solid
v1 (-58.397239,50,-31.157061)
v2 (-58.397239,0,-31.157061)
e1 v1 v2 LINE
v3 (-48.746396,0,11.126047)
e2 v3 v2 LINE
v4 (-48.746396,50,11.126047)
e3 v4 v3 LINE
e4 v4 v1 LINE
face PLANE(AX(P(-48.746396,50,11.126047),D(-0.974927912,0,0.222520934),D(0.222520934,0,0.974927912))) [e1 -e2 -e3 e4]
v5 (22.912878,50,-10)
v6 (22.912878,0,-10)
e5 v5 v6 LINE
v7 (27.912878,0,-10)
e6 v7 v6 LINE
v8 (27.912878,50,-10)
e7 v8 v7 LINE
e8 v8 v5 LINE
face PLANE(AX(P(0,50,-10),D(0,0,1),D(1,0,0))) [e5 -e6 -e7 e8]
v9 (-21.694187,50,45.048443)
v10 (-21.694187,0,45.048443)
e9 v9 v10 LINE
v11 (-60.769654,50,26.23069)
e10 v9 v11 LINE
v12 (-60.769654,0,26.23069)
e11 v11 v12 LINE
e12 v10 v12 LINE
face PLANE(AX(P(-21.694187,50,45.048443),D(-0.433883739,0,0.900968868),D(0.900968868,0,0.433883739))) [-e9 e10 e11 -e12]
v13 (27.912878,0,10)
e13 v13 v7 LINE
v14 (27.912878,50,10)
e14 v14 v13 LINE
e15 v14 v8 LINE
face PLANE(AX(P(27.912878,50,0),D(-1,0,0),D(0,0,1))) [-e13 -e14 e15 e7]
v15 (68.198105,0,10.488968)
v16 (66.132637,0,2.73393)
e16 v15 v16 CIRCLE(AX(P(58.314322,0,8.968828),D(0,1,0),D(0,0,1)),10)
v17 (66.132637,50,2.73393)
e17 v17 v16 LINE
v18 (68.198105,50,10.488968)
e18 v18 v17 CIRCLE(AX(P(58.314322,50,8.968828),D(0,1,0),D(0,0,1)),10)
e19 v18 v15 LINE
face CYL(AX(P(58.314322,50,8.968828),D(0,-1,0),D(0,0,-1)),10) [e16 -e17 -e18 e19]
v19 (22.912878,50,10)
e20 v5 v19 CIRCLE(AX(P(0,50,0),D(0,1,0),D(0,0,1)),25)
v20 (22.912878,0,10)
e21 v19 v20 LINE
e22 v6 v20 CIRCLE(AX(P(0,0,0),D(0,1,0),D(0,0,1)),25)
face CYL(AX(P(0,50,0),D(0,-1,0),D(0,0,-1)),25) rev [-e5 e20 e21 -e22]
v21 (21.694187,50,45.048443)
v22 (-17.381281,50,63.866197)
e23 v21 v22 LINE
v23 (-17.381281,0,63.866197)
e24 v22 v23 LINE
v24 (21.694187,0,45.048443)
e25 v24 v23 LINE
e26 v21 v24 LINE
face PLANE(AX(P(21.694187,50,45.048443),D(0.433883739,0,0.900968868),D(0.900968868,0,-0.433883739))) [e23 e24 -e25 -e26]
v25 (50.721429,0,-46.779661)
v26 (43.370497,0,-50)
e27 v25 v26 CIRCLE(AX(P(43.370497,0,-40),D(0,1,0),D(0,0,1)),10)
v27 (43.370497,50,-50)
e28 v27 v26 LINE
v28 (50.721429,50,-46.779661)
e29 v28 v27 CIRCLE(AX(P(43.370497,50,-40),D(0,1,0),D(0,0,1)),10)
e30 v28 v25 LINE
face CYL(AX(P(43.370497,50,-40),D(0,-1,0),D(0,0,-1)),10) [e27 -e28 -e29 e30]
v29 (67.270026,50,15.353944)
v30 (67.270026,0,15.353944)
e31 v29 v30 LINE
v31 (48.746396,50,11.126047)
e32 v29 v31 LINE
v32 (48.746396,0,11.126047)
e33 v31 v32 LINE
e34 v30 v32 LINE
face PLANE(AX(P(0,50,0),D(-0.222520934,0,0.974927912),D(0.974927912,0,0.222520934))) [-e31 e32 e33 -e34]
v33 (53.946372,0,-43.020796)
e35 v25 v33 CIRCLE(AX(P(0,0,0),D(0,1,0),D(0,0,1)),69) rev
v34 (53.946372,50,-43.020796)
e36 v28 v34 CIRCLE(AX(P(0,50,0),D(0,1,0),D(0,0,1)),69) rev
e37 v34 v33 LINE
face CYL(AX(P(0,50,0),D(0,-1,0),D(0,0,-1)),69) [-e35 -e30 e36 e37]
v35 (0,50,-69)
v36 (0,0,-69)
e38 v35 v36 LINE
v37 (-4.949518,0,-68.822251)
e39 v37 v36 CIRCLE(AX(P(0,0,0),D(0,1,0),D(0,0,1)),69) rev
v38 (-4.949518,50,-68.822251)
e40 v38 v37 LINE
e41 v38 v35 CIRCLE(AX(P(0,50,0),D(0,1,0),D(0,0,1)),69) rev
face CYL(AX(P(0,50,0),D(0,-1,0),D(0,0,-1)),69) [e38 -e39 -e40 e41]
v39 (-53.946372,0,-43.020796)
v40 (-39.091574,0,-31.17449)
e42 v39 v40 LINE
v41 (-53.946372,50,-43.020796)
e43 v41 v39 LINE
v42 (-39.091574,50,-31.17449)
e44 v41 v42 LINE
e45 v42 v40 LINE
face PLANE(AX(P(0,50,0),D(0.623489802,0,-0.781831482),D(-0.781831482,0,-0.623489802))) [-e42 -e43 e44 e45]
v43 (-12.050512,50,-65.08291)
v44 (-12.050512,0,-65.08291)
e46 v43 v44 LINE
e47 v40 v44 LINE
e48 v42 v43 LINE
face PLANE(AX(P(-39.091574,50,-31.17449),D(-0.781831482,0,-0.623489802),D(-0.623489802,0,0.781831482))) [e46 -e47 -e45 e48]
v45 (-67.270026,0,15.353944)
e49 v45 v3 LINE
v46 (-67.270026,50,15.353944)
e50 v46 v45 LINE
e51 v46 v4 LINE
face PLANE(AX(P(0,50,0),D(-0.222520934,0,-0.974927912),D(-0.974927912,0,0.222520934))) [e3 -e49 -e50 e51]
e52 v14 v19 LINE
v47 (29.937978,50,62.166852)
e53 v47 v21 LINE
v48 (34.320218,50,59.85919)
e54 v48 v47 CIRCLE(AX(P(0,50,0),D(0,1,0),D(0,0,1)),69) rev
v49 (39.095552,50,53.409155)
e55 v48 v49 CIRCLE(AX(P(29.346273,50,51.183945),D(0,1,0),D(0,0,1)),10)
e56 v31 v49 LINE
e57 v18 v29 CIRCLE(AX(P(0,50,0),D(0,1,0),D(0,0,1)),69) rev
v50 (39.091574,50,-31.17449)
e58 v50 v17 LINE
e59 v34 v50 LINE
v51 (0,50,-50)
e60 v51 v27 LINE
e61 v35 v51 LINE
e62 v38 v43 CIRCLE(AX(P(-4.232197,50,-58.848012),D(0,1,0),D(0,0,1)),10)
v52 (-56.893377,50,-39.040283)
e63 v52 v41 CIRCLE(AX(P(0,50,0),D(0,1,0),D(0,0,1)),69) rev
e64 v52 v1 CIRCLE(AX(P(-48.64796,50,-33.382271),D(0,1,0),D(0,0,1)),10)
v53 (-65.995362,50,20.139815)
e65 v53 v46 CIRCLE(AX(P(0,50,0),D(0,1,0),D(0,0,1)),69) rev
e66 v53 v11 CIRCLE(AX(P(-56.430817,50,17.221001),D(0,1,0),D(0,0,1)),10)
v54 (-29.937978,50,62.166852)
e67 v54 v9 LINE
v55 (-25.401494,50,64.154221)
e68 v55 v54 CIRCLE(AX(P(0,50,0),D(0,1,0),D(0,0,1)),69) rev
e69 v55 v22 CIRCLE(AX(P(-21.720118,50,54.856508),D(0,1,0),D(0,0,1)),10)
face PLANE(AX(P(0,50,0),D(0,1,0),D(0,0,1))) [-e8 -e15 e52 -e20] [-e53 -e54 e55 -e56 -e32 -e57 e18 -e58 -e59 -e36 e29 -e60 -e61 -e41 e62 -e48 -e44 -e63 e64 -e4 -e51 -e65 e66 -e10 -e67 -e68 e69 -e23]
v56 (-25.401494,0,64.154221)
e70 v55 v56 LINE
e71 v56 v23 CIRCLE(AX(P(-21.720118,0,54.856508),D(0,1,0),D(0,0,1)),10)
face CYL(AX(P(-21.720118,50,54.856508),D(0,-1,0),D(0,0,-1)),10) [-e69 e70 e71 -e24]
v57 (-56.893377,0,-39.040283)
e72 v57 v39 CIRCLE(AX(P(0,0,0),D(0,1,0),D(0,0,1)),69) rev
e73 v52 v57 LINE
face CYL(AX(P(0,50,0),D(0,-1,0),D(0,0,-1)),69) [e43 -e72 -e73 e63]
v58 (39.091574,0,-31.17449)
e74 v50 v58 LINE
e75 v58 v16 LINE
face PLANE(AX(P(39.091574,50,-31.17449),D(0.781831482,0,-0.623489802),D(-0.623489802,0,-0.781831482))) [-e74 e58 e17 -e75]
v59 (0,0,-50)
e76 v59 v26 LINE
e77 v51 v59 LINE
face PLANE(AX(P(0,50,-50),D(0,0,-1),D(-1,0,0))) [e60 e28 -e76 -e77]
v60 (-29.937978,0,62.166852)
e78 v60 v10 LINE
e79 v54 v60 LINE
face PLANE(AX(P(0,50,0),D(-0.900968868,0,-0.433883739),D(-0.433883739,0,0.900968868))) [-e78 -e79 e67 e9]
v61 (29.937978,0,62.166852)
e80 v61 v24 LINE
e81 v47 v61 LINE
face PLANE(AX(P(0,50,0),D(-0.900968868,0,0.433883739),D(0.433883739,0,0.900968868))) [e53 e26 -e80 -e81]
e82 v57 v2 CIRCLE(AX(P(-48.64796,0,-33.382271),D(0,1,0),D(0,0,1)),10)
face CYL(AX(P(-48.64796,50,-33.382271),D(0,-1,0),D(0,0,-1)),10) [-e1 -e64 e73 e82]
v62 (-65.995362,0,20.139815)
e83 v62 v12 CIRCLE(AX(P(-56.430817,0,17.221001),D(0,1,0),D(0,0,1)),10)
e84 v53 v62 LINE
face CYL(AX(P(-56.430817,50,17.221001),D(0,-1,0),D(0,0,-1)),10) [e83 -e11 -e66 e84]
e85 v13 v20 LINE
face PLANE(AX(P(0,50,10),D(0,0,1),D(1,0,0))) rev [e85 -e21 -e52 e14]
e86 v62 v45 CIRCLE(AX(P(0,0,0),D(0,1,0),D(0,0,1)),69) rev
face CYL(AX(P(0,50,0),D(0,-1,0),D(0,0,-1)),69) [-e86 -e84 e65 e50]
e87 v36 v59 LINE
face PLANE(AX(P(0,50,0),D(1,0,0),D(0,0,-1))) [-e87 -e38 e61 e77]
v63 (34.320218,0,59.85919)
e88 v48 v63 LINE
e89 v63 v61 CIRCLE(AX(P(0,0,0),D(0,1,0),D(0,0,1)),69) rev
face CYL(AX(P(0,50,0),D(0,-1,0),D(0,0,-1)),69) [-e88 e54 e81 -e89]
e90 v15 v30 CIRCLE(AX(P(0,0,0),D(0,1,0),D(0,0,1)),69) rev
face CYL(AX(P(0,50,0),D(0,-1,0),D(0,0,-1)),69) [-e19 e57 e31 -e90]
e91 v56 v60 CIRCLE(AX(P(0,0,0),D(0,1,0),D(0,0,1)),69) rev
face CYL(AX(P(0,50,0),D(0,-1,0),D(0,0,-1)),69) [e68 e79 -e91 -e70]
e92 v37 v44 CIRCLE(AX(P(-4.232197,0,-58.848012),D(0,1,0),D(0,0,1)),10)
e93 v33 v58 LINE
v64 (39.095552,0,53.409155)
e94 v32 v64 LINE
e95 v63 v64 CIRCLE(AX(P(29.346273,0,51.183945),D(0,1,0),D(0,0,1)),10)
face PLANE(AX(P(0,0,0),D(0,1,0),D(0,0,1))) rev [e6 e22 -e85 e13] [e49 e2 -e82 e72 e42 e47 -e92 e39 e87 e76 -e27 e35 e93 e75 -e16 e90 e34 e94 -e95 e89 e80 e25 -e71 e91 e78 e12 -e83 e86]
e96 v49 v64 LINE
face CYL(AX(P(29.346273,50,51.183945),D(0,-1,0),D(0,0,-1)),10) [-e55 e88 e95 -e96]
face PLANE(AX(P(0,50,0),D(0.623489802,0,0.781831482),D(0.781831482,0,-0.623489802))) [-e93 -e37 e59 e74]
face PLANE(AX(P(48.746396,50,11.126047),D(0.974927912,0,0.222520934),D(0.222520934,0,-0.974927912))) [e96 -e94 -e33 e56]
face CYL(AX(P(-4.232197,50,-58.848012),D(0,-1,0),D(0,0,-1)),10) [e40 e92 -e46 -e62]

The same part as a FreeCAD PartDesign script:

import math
import FreeCAD as App
import Part
import Sketcher

V = App.Vector
Q = App.Units.Quantity

doc = App.newDocument("Part")
body = doc.addObject("PartDesign::Body", "Body")

# Sketch on XZ plane
sketch1 = body.newObject("Sketcher::SketchObject", "Sketch")
sketch1.AttachmentSupport = (doc.getObject("XZ_Plane"), [""])
sketch1.MapMode = "FlatFace"
sketch1.addGeometry([
    Part.LineSegment(V(43.4, -50, 0), V(0, -50, 0)),  # 0
    Part.LineSegment(V(0, -50, 0), V(0, -69, 0)),  # 1
    Part.ArcOfCircle(Part.Circle(V(0, 0, 0), V(0, 0, 1), 69), math.radians(-94.11), math.radians(-90)),  # 2
    Part.ArcOfCircle(Part.Circle(V(-4.2, -58.8, 0), V(0, 0, 1), 10), math.radians(-141), math.radians(-94)),  # 3
    Part.LineSegment(V(-12.1, -65.1, 0), V(-39.1, -31.2, 0)),  # 4
    Part.LineSegment(V(-39.1, -31.2, 0), V(-53.9, -43, 0)),  # 5
    Part.ArcOfCircle(Part.Circle(V(0, 0, 0), V(0, 0, 1), 69), math.radians(-145.54), math.radians(-141.43)),  # 6
    Part.ArcOfCircle(Part.Circle(V(-48.6, -33.4, 0), V(0, 0, 1), 10), math.radians(167), math.radians(214)),  # 7
    Part.LineSegment(V(-58.4, -31.2, 0), V(-48.7, 11.1, 0)),  # 8
    Part.LineSegment(V(-48.7, 11.1, 0), V(-67.3, 15.4, 0)),  # 9
    Part.ArcOfCircle(Part.Circle(V(0, 0, 0), V(0, 0, 1), 69), math.radians(163.03), math.radians(167.14)),  # 10
    Part.ArcOfCircle(Part.Circle(V(-56.4, 17.2, 0), V(0, 0, 1), 10), math.radians(116), math.radians(163)),  # 11
    Part.LineSegment(V(-60.8, 26.2, 0), V(-21.7, 45, 0)),  # 12
    Part.LineSegment(V(-21.7, 45, 0), V(-29.9, 62.2, 0)),  # 13
    Part.ArcOfCircle(Part.Circle(V(0, 0, 0), V(0, 0, 1), 69), math.radians(111.6), math.radians(115.71)),  # 14
    Part.ArcOfCircle(Part.Circle(V(-21.7, 54.9, 0), V(0, 0, 1), 10), math.radians(64), math.radians(112)),  # 15
    Part.LineSegment(V(-17.4, 63.9, 0), V(21.7, 45, 0)),  # 16
    Part.LineSegment(V(21.7, 45, 0), V(29.9, 62.2, 0)),  # 17
    Part.ArcOfCircle(Part.Circle(V(0, 0, 0), V(0, 0, 1), 69), math.radians(60.17), math.radians(64.29)),  # 18
    Part.ArcOfCircle(Part.Circle(V(29.3, 51.2, 0), V(0, 0, 1), 10), math.radians(13), math.radians(60)),  # 19
    Part.LineSegment(V(39.1, 53.4, 0), V(48.7, 11.1, 0)),  # 20
    Part.LineSegment(V(48.7, 11.1, 0), V(67.3, 15.4, 0)),  # 21
    Part.ArcOfCircle(Part.Circle(V(0, 0, 0), V(0, 0, 1), 69), math.radians(8.74), math.radians(12.86)),  # 22
    Part.ArcOfCircle(Part.Circle(V(58.3, 9, 0), V(0, 0, 1), 10), math.radians(-39), math.radians(9)),  # 23
    Part.LineSegment(V(66.1, 2.7, 0), V(39.1, -31.2, 0)),  # 24
    Part.LineSegment(V(39.1, -31.2, 0), V(53.9, -43, 0)),  # 25
    Part.ArcOfCircle(Part.Circle(V(0, 0, 0), V(0, 0, 1), 69), math.radians(-42.68), math.radians(-38.57)),  # 26
    Part.ArcOfCircle(Part.Circle(V(43.4, -40, 0), V(0, 0, 1), 10), math.radians(-90), math.radians(-43)),  # 27
    Part.LineSegment(V(27.9, 10, 0), V(22.9, 10, 0)),  # 28
    Part.ArcOfCircle(Part.Circle(V(0, 0, 0), V(0, 0, 1), 25), math.radians(24), math.radians(336)),  # 29
    Part.LineSegment(V(22.9, -10, 0), V(27.9, -10, 0)),  # 30
    Part.LineSegment(V(27.9, -10, 0), V(27.9, 10, 0)),  # 31
], False)
sketch1.addConstraint([
    Sketcher.Constraint("Coincident", 0, 2, 1, 1),
    Sketcher.Constraint("Coincident", 1, 2, 2, 2),
    Sketcher.Constraint("Tangent", 2, 1, 3, 2),
    Sketcher.Constraint("Tangent", 3, 1, 4, 1),
    Sketcher.Constraint("Coincident", 4, 2, 5, 1),
    Sketcher.Constraint("Coincident", 5, 2, 6, 2),
    Sketcher.Constraint("Tangent", 6, 1, 7, 2),
    Sketcher.Constraint("Tangent", 7, 1, 8, 1),
    Sketcher.Constraint("Coincident", 8, 2, 9, 1),
    Sketcher.Constraint("Coincident", 9, 2, 10, 2),
    Sketcher.Constraint("Tangent", 10, 1, 11, 2),
    Sketcher.Constraint("Tangent", 11, 1, 12, 1),
    Sketcher.Constraint("Coincident", 12, 2, 13, 1),
    Sketcher.Constraint("Coincident", 13, 2, 14, 2),
    Sketcher.Constraint("Tangent", 14, 1, 15, 2),
    Sketcher.Constraint("Tangent", 15, 1, 16, 1),
    Sketcher.Constraint("Coincident", 16, 2, 17, 1),
    Sketcher.Constraint("Coincident", 17, 2, 18, 2),
    Sketcher.Constraint("Tangent", 18, 1, 19, 2),
    Sketcher.Constraint("Tangent", 19, 1, 20, 1),
    Sketcher.Constraint("Coincident", 20, 2, 21, 1),
    Sketcher.Constraint("Coincident", 21, 2, 22, 2),
    Sketcher.Constraint("Tangent", 22, 1, 23, 2),
    Sketcher.Constraint("Tangent", 23, 1, 24, 1),
    Sketcher.Constraint("Coincident", 24, 2, 25, 1),
    Sketcher.Constraint("Coincident", 25, 2, 26, 2),
    Sketcher.Constraint("Tangent", 26, 1, 27, 2),
    Sketcher.Constraint("Tangent", 27, 1, 0, 1),
    Sketcher.Constraint("Coincident", 28, 2, 29, 1),
    Sketcher.Constraint("Coincident", 29, 2, 30, 1),
    Sketcher.Constraint("Coincident", 30, 2, 31, 1),
    Sketcher.Constraint("Coincident", 31, 2, 28, 1),
    Sketcher.Constraint("Horizontal", 0),
    Sketcher.Constraint("Vertical", 1),
    Sketcher.Constraint("Horizontal", 28),
    Sketcher.Constraint("Horizontal", 30),
    Sketcher.Constraint("Vertical", 31),
    Sketcher.Constraint("Coincident", 2, 3, -1, 1),
    Sketcher.Constraint("Coincident", 6, 3, -1, 1),
    Sketcher.Constraint("Coincident", 10, 3, -1, 1),
    Sketcher.Constraint("Coincident", 14, 3, -1, 1),
    Sketcher.Constraint("Coincident", 18, 3, -1, 1),
    Sketcher.Constraint("Coincident", 22, 3, -1, 1),
    Sketcher.Constraint("Coincident", 26, 3, -1, 1),
    Sketcher.Constraint("Coincident", 29, 3, -1, 1),
    Sketcher.Constraint("Equal", 2, 6),
    Sketcher.Constraint("Equal", 3, 7),
    Sketcher.Constraint("Equal", 6, 10),
    Sketcher.Constraint("Equal", 7, 11),
    Sketcher.Constraint("Equal", 10, 14),
    Sketcher.Constraint("Equal", 11, 15),
    Sketcher.Constraint("Equal", 14, 18),
    Sketcher.Constraint("Equal", 15, 19),
    Sketcher.Constraint("Equal", 18, 22),
    Sketcher.Constraint("Equal", 19, 23),
    Sketcher.Constraint("Equal", 22, 26),
    Sketcher.Constraint("Equal", 23, 27),
    Sketcher.Constraint("Symmetric", 12, 2, 16, 2, -2),
    Sketcher.Constraint("Symmetric", 8, 2, 20, 2, -2),
    Sketcher.Constraint("Symmetric", 4, 2, 24, 2, -2),
    Sketcher.Constraint("PointOnObject", 0, 2, -2),
    Sketcher.Constraint("Perpendicular", 4, 5),
    Sketcher.Constraint("Perpendicular", 8, 9),
    Sketcher.Constraint("Perpendicular", 12, 13),
    Sketcher.Constraint("Perpendicular", 16, 17),
    Sketcher.Constraint("Perpendicular", 20, 21),
    Sketcher.Constraint("Perpendicular", 24, 25),
    Sketcher.Constraint("Horizontal", 13, 2, 17, 2),
    Sketcher.Constraint("Horizontal", 9, 2, 21, 2),
    Sketcher.Constraint("Horizontal", 5, 2, 25, 2),
    Sketcher.Constraint("Vertical", 28, 2, 29, 2),
    Sketcher.Constraint("Equal", 4, 8),
    Sketcher.Constraint("Equal", 5, 9),
    Sketcher.Constraint("Equal", 8, 12),
    Sketcher.Constraint("Equal", 9, 13),
    Sketcher.Constraint("Equal", 12, 16),
    Sketcher.Constraint("Radius", 2, Q("69 mm")),
    Sketcher.Constraint("Radius", 3, Q("10 mm")),
    Sketcher.Constraint("Radius", 29, Q("25 mm")),
    Sketcher.Constraint("DistanceX", 28, 2, 28, 1, Q("5 mm")),
    Sketcher.Constraint("DistanceY", 1, 2, 1, 1, Q("19 mm")),
    Sketcher.Constraint("DistanceY", 31, 1, 31, 2, Q("20 mm")),
    Sketcher.Constraint("Distance", 5, Q("19 mm")),
    Sketcher.Constraint("DistanceY", 21, 2, 19, 3, Q("35.830001 mm")),
    Sketcher.Constraint("DistanceY", -1, 1, 11, 3, Q("17.221001 mm")),
    Sketcher.Constraint("DistanceY", 3, 1, 3, 3, Q("6.234898 mm")),
])
pad1 = body.newObject("PartDesign::Pad", "Pad")
pad1.Profile = sketch1
pad1.Length = 50
pad1.Reversed = True

doc.recompute()
